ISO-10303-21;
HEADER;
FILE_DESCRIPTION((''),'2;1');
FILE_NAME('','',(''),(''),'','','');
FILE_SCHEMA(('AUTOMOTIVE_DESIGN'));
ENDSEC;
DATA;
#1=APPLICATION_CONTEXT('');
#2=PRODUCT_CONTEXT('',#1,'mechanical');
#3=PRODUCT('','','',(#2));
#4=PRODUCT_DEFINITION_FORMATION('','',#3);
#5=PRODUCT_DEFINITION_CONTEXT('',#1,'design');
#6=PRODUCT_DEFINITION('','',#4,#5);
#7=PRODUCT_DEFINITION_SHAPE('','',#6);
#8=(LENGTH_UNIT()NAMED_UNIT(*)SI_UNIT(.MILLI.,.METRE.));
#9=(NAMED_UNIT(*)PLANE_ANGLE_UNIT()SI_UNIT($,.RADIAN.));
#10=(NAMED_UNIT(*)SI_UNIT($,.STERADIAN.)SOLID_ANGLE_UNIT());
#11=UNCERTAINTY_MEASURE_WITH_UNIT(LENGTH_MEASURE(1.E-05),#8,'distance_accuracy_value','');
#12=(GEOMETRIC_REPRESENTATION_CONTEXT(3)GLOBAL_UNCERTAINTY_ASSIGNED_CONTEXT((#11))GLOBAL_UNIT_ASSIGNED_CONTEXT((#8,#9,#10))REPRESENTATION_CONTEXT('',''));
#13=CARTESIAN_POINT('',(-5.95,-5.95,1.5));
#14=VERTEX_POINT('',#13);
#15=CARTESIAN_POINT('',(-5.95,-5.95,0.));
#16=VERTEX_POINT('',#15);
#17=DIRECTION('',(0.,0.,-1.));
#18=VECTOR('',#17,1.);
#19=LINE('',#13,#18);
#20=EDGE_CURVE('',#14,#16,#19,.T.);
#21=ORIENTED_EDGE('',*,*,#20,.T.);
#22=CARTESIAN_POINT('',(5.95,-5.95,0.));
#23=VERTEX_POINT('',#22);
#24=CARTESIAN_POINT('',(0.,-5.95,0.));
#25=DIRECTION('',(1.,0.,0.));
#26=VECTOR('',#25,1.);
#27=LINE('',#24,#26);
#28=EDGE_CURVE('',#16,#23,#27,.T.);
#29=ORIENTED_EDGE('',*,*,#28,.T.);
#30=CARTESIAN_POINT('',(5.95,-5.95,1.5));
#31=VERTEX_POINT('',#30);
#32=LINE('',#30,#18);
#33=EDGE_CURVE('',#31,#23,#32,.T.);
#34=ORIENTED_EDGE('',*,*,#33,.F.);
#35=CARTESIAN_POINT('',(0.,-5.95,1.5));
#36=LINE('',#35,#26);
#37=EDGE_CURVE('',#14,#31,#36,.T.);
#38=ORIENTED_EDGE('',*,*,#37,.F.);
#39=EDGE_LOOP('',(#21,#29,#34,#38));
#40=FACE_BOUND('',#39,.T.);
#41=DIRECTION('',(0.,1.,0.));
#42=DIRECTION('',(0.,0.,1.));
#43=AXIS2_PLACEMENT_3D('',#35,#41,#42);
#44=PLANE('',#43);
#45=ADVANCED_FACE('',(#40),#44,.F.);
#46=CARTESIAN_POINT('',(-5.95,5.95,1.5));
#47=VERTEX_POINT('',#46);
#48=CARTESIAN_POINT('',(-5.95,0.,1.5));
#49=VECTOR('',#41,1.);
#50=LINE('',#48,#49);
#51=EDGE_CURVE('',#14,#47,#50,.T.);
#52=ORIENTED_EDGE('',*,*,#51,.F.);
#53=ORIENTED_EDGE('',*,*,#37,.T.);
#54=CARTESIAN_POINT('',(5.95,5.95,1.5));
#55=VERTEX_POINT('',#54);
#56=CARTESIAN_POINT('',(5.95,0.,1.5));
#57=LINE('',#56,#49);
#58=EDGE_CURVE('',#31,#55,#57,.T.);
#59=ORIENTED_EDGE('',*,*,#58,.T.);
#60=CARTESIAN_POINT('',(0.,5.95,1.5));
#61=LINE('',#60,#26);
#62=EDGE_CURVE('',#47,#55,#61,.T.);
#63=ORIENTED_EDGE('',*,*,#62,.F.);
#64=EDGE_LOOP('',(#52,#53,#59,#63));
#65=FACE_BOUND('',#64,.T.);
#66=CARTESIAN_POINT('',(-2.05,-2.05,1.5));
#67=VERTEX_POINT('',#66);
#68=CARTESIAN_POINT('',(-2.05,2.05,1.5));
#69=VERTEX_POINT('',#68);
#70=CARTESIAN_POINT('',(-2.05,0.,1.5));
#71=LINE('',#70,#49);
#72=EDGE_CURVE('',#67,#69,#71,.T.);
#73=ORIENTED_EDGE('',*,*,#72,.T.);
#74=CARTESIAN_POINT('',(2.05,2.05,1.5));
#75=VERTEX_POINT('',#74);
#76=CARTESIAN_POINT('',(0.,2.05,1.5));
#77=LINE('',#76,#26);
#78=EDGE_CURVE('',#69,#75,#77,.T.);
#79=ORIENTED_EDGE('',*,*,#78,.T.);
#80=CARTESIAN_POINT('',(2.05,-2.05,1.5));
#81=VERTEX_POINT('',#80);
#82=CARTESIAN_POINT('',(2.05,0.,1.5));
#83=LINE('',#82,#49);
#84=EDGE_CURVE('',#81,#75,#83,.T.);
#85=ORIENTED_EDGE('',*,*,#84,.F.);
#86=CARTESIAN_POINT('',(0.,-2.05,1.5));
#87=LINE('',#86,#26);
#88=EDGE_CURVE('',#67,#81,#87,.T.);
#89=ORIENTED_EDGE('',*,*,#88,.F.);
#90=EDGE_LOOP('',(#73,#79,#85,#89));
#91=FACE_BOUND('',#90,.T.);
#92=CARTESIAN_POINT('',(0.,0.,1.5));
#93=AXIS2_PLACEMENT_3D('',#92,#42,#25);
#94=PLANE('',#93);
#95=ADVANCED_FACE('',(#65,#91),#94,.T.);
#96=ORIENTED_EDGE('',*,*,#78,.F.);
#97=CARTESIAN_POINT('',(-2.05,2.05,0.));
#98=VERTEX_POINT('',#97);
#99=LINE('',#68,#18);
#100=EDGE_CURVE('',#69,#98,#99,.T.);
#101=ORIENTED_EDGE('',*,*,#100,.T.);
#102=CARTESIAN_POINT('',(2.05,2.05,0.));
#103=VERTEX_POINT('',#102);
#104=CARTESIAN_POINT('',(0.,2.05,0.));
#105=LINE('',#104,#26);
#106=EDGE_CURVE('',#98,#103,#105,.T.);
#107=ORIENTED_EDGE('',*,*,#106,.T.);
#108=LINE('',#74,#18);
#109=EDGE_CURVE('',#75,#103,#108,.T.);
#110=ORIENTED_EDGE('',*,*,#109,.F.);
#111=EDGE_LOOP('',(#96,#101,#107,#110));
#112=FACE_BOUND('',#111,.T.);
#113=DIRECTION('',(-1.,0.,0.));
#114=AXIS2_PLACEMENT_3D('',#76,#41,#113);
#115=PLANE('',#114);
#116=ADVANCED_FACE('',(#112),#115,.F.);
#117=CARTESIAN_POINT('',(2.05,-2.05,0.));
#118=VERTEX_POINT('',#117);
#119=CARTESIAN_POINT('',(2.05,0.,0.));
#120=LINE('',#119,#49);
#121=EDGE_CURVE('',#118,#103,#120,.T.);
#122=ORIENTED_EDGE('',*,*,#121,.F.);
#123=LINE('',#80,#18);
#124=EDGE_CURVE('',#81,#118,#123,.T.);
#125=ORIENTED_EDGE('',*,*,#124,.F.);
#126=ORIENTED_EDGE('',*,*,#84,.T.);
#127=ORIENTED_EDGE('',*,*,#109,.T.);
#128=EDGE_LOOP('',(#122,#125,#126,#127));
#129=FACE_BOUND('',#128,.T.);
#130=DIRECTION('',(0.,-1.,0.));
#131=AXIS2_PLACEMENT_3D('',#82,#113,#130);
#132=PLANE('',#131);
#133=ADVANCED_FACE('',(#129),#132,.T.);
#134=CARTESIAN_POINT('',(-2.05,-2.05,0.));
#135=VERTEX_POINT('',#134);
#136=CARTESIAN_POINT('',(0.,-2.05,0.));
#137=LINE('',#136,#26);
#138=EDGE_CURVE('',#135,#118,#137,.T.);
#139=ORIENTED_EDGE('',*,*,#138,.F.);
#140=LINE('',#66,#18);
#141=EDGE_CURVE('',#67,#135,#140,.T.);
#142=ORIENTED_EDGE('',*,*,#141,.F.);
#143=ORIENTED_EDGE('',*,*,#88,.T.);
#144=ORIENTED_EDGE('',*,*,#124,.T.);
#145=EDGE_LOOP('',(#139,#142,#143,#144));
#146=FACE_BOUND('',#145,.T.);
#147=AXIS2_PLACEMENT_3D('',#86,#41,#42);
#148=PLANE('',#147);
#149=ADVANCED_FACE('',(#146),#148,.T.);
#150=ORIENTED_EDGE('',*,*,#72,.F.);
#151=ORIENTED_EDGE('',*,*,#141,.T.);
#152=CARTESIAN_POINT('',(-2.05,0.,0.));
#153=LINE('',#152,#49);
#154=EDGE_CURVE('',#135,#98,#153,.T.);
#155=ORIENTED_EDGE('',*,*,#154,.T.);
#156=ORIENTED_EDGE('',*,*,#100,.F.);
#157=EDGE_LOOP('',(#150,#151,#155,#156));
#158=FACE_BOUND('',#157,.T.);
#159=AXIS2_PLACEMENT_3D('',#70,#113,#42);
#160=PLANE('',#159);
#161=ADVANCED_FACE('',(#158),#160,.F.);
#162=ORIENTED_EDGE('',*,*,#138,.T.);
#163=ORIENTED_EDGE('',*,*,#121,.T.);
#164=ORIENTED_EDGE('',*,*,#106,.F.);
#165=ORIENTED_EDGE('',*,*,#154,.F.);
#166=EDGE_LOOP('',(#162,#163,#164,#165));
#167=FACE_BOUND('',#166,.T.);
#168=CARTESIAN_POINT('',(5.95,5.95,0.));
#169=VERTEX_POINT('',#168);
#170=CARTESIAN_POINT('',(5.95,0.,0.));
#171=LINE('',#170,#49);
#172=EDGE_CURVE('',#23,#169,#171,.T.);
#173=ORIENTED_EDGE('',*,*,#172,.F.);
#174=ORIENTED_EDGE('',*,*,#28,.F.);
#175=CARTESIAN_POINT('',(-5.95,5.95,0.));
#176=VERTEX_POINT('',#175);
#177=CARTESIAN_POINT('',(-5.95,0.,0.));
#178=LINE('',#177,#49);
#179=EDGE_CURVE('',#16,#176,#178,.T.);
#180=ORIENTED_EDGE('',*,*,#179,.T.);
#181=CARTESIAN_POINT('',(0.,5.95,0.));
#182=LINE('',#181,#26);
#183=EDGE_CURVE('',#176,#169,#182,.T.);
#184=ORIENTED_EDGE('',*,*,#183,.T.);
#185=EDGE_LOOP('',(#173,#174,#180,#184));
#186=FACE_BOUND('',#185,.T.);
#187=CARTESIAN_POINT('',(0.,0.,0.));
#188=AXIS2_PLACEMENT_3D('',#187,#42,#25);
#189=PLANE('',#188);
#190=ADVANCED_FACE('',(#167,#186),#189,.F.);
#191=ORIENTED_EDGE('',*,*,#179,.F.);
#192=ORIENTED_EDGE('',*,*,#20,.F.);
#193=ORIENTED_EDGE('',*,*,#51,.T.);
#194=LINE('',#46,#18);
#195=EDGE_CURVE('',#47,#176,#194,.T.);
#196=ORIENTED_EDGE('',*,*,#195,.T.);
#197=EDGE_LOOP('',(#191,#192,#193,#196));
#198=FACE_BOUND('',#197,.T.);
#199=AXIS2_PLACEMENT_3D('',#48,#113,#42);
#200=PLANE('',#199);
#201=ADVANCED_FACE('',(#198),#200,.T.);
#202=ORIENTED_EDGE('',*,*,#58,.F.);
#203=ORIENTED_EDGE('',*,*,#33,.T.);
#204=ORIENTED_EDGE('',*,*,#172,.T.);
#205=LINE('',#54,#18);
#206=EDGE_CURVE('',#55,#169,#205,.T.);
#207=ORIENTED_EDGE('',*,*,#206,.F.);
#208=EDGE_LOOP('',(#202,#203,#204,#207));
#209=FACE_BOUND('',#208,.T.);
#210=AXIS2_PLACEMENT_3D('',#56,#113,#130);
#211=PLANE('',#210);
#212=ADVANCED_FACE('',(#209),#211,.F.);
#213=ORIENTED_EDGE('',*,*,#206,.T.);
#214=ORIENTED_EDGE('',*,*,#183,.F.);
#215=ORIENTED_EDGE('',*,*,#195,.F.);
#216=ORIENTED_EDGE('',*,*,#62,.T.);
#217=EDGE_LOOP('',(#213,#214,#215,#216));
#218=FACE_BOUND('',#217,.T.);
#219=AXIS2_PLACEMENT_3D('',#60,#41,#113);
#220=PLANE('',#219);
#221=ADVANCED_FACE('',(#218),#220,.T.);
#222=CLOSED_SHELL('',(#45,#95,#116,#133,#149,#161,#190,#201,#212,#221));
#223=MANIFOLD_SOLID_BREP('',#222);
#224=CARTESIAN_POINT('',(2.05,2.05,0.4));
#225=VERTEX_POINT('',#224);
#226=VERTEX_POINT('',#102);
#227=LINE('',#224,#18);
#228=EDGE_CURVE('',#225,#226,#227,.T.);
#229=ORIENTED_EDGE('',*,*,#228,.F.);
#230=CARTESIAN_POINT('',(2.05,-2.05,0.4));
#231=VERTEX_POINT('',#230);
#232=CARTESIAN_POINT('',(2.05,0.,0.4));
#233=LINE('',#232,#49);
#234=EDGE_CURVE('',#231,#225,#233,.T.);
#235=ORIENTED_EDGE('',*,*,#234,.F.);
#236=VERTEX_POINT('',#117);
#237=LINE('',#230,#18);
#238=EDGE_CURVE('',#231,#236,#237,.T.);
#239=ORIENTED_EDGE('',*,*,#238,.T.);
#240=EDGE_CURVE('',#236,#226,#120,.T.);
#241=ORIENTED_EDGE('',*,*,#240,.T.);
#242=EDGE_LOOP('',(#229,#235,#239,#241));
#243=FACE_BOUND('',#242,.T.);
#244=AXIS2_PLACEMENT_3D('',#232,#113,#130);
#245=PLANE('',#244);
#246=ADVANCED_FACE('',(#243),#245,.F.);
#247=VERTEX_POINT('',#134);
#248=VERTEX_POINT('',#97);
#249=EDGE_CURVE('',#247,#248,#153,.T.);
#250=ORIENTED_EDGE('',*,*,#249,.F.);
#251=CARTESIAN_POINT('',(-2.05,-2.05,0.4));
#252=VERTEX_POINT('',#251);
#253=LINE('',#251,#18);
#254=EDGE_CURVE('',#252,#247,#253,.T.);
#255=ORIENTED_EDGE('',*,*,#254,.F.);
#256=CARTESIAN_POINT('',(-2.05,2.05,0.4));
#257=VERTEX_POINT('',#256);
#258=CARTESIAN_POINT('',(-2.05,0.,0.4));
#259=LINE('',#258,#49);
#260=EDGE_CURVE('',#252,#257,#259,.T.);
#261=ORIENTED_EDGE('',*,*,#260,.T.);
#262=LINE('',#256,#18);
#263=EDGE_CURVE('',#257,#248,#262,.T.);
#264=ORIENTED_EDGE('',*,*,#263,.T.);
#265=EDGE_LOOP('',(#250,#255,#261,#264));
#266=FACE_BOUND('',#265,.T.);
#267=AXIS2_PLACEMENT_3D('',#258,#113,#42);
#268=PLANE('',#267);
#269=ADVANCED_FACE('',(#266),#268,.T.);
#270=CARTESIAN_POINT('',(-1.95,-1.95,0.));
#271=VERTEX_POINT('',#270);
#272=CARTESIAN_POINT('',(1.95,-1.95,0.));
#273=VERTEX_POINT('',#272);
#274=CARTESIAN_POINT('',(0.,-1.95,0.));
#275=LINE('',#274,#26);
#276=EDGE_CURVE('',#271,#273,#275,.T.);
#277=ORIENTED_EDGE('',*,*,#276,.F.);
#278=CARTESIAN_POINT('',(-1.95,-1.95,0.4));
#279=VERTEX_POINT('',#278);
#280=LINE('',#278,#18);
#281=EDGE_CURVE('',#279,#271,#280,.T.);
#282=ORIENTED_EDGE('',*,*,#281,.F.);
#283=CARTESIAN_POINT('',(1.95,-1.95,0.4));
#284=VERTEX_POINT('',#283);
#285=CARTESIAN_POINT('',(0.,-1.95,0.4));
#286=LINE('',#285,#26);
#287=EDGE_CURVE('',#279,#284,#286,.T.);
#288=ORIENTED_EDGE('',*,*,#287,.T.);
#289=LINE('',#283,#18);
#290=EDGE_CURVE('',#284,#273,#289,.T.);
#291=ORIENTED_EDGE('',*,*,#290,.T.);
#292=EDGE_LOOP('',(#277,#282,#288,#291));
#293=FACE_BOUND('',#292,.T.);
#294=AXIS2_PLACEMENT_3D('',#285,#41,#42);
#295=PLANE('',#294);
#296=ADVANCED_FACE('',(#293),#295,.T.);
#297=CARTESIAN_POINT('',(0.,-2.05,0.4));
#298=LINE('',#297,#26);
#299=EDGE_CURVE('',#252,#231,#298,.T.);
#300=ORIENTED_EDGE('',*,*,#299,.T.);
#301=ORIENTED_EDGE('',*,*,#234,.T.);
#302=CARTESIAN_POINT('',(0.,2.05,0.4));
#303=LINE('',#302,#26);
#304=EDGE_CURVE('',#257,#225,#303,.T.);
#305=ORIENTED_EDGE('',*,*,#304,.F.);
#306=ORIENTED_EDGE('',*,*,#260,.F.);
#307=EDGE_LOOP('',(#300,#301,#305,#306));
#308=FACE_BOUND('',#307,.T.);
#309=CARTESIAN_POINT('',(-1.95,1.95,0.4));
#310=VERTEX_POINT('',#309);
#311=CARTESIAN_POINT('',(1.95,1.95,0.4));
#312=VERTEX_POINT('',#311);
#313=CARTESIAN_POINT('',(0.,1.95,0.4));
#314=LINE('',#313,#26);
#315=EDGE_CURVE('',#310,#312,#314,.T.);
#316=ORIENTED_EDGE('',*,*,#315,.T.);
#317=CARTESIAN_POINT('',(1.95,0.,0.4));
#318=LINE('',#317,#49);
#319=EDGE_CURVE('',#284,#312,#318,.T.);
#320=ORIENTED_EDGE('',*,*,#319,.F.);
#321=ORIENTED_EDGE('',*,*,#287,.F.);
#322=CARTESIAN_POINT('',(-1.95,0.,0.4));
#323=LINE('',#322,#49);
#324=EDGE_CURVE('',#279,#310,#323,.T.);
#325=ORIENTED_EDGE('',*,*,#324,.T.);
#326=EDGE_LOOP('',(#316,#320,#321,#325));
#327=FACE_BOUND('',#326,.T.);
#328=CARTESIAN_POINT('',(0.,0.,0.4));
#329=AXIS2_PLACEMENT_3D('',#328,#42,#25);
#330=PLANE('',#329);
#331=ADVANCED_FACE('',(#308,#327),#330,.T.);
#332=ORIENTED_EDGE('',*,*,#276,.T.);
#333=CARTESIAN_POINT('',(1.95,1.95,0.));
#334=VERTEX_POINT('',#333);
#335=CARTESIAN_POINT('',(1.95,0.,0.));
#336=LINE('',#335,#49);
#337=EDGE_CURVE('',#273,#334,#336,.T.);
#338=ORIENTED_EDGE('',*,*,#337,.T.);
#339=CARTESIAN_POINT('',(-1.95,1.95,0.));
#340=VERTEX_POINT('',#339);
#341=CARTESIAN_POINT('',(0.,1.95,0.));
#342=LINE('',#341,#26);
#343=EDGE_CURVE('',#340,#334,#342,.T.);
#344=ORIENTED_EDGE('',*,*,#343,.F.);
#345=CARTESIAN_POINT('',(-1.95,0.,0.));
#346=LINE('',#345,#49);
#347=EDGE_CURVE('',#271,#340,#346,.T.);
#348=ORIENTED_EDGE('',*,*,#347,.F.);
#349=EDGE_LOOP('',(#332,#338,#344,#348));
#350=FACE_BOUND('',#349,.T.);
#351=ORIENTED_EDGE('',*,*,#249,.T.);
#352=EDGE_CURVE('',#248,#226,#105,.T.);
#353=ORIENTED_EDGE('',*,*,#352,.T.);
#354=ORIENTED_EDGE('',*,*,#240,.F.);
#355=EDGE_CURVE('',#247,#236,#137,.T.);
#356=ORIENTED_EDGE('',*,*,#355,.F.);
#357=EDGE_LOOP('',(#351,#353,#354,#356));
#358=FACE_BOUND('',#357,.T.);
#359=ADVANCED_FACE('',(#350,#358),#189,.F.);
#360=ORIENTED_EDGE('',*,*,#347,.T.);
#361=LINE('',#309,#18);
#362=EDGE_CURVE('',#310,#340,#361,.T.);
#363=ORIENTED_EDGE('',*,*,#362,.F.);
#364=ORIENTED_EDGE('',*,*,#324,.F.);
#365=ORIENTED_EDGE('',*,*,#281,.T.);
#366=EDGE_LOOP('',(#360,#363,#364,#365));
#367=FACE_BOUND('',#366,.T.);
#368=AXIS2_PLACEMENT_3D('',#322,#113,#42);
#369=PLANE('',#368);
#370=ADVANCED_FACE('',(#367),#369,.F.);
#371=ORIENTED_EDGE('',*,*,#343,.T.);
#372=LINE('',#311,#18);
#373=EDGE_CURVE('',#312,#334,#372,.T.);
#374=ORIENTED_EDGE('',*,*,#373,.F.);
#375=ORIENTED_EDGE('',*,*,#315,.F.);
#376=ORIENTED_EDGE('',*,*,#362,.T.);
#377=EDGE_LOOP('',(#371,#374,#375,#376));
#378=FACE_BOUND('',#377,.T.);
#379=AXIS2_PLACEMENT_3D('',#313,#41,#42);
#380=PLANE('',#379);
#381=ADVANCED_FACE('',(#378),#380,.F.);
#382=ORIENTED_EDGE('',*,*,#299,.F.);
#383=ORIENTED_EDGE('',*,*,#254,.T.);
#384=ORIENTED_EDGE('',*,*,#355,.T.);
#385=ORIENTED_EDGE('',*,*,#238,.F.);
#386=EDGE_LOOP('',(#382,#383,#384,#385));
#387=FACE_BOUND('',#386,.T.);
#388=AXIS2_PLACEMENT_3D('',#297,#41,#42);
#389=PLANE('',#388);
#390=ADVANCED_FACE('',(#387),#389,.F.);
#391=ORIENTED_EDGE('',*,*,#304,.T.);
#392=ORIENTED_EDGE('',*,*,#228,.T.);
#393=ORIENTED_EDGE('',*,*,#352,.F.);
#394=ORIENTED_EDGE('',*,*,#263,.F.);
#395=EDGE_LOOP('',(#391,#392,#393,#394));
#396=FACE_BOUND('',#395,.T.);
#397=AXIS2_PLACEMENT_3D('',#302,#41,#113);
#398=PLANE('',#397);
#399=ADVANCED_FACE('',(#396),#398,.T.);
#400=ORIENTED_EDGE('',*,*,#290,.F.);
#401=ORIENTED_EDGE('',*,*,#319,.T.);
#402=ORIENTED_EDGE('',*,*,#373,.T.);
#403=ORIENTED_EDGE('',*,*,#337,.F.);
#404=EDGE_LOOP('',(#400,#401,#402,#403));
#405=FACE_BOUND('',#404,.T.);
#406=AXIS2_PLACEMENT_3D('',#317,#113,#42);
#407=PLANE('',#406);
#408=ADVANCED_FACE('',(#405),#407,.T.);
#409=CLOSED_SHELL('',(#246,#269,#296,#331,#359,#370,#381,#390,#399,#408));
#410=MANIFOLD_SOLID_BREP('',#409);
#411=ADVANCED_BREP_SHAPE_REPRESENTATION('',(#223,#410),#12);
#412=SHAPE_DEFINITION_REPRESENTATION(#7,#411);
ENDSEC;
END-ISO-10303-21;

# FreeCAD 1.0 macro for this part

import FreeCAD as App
import Part
import Sketcher

V = App.Vector

doc = App.newDocument("Part")
body = doc.addObject("PartDesign::Body", "Body")

# Sketch on XY plane
sketch1 = body.newObject("Sketcher::SketchObject", "Sketch")
sketch1.AttachmentSupport = (doc.getObject("XY_Plane"), [""])
sketch1.MapMode = "FlatFace"
sketch1.addGeometry(Part.LineSegment(V(-6, 6, 0), V(-6, -6, 0)), False)
sketch1.addGeometry(Part.LineSegment(V(-6, -6, 0), V(6, -6, 0)), False)
sketch1.addGeometry(Part.LineSegment(V(6, -6, 0), V(6, 6, 0)), False)
sketch1.addGeometry(Part.LineSegment(V(6, 6, 0), V(-6, 6, 0)), False)
sketch1.addGeometry(Part.LineSegment(V(2, -2, 0), V(-2, -2, 0)), False)
sketch1.addGeometry(Part.LineSegment(V(-2, -2, 0), V(-2, 2, 0)), False)
sketch1.addGeometry(Part.LineSegment(V(-2, 2, 0), V(2, 2, 0)), False)
sketch1.addGeometry(Part.LineSegment(V(2, 2, 0), V(2, -2, 0)), False)
sketch1.addConstraint(Sketcher.Constraint("Coincident", 0, 2, 1, 1))
sketch1.addConstraint(Sketcher.Constraint("Coincident", 1, 2, 2, 1))
sketch1.addConstraint(Sketcher.Constraint("Coincident", 2, 2, 3, 1))
sketch1.addConstraint(Sketcher.Constraint("Coincident", 3, 2, 0, 1))
sketch1.addConstraint(Sketcher.Constraint("Coincident", 4, 2, 5, 1))
sketch1.addConstraint(Sketcher.Constraint("Coincident", 5, 2, 6, 1))
sketch1.addConstraint(Sketcher.Constraint("Coincident", 6, 2, 7, 1))
sketch1.addConstraint(Sketcher.Constraint("Coincident", 7, 2, 4, 1))
sketch1.addConstraint(Sketcher.Constraint("Vertical", 0))
sketch1.addConstraint(Sketcher.Constraint("Horizontal", 1))
sketch1.addConstraint(Sketcher.Constraint("Vertical", 2))
sketch1.addConstraint(Sketcher.Constraint("Horizontal", 3))
sketch1.addConstraint(Sketcher.Constraint("Horizontal", 4))
sketch1.addConstraint(Sketcher.Constraint("Vertical", 5))
sketch1.addConstraint(Sketcher.Constraint("Horizontal", 6))
sketch1.addConstraint(Sketcher.Constraint("Vertical", 7))
sketch1.addConstraint(Sketcher.Constraint("Symmetric", 0, 2, 2, 2, -1, 1))
sketch1.addConstraint(Sketcher.Constraint("Symmetric", 4, 2, 6, 2, -1, 1))
sketch1.addConstraint(Sketcher.Constraint("Equal", 3, 0))
sketch1.addConstraint(Sketcher.Constraint("Equal", 6, 5))
sketch1.addConstraint(Sketcher.Constraint("DistanceX", 1, 1, 1, 2, 11.9))
sketch1.addConstraint(Sketcher.Constraint("DistanceX", 4, 2, 4, 1, 4.1))
pad1 = body.newObject("PartDesign::Pad", "Pad")
pad1.Profile = sketch1
pad1.Length = 1.5
body2 = doc.addObject("PartDesign::Body", "Body001")

# Sketch on XY plane
sketch2 = body2.newObject("Sketcher::SketchObject", "Sketch001")
sketch2.AttachmentSupport = (doc.getObject("XY_Plane001"), [""])
sketch2.MapMode = "FlatFace"
sketch2.addGeometry(Part.LineSegment(V(-2, 2, 0), V(-2, -2, 0)), False)
sketch2.addGeometry(Part.LineSegment(V(-2, -2, 0), V(2, -2, 0)), False)
sketch2.addGeometry(Part.LineSegment(V(2, -2, 0), V(2, 2, 0)), False)
sketch2.addGeometry(Part.LineSegment(V(2, 2, 0), V(-2, 2, 0)), False)
sketch2.addGeometry(Part.LineSegment(V(1.9, -1.9, 0), V(-1.9, -1.9, 0)), False)
sketch2.addGeometry(Part.LineSegment(V(-1.9, -1.9, 0), V(-1.9, 1.9, 0)), False)
sketch2.addGeometry(Part.LineSegment(V(-1.9, 1.9, 0), V(1.9, 1.9, 0)), False)
sketch2.addGeometry(Part.LineSegment(V(1.9, 1.9, 0), V(1.9, -1.9, 0)), False)
sketch2.addConstraint(Sketcher.Constraint("Coincident", 0, 2, 1, 1))
sketch2.addConstraint(Sketcher.Constraint("Coincident", 1, 2, 2, 1))
sketch2.addConstraint(Sketcher.Constraint("Coincident", 2, 2, 3, 1))
sketch2.addConstraint(Sketcher.Constraint("Coincident", 3, 2, 0, 1))
sketch2.addConstraint(Sketcher.Constraint("Coincident", 4, 2, 5, 1))
sketch2.addConstraint(Sketcher.Constraint("Coincident", 5, 2, 6, 1))
sketch2.addConstraint(Sketcher.Constraint("Coincident", 6, 2, 7, 1))
sketch2.addConstraint(Sketcher.Constraint("Coincident", 7, 2, 4, 1))
sketch2.addConstraint(Sketcher.Constraint("Vertical", 0))
sketch2.addConstraint(Sketcher.Constraint("Horizontal", 1))
sketch2.addConstraint(Sketcher.Constraint("Vertical", 2))
sketch2.addConstraint(Sketcher.Constraint("Horizontal", 3))
sketch2.addConstraint(Sketcher.Constraint("Horizontal", 4))
sketch2.addConstraint(Sketcher.Constraint("Vertical", 5))
sketch2.addConstraint(Sketcher.Constraint("Horizontal", 6))
sketch2.addConstraint(Sketcher.Constraint("Vertical", 7))
sketch2.addConstraint(Sketcher.Constraint("Symmetric", 0, 2, 2, 2, -1, 1))
sketch2.addConstraint(Sketcher.Constraint("Symmetric", 4, 2, 6, 2, -1, 1))
sketch2.addConstraint(Sketcher.Constraint("Equal", 3, 0))
sketch2.addConstraint(Sketcher.Constraint("Equal", 6, 5))
sketch2.addConstraint(Sketcher.Constraint("DistanceX", 1, 1, 1, 2, 4.1))
sketch2.addConstraint(Sketcher.Constraint("DistanceX", 4, 2, 4, 1, 3.9))
pad2 = body2.newObject("PartDesign::Pad", "Pad001")
pad2.Profile = sketch2
pad2.Length = 0.4

doc.recompute()
